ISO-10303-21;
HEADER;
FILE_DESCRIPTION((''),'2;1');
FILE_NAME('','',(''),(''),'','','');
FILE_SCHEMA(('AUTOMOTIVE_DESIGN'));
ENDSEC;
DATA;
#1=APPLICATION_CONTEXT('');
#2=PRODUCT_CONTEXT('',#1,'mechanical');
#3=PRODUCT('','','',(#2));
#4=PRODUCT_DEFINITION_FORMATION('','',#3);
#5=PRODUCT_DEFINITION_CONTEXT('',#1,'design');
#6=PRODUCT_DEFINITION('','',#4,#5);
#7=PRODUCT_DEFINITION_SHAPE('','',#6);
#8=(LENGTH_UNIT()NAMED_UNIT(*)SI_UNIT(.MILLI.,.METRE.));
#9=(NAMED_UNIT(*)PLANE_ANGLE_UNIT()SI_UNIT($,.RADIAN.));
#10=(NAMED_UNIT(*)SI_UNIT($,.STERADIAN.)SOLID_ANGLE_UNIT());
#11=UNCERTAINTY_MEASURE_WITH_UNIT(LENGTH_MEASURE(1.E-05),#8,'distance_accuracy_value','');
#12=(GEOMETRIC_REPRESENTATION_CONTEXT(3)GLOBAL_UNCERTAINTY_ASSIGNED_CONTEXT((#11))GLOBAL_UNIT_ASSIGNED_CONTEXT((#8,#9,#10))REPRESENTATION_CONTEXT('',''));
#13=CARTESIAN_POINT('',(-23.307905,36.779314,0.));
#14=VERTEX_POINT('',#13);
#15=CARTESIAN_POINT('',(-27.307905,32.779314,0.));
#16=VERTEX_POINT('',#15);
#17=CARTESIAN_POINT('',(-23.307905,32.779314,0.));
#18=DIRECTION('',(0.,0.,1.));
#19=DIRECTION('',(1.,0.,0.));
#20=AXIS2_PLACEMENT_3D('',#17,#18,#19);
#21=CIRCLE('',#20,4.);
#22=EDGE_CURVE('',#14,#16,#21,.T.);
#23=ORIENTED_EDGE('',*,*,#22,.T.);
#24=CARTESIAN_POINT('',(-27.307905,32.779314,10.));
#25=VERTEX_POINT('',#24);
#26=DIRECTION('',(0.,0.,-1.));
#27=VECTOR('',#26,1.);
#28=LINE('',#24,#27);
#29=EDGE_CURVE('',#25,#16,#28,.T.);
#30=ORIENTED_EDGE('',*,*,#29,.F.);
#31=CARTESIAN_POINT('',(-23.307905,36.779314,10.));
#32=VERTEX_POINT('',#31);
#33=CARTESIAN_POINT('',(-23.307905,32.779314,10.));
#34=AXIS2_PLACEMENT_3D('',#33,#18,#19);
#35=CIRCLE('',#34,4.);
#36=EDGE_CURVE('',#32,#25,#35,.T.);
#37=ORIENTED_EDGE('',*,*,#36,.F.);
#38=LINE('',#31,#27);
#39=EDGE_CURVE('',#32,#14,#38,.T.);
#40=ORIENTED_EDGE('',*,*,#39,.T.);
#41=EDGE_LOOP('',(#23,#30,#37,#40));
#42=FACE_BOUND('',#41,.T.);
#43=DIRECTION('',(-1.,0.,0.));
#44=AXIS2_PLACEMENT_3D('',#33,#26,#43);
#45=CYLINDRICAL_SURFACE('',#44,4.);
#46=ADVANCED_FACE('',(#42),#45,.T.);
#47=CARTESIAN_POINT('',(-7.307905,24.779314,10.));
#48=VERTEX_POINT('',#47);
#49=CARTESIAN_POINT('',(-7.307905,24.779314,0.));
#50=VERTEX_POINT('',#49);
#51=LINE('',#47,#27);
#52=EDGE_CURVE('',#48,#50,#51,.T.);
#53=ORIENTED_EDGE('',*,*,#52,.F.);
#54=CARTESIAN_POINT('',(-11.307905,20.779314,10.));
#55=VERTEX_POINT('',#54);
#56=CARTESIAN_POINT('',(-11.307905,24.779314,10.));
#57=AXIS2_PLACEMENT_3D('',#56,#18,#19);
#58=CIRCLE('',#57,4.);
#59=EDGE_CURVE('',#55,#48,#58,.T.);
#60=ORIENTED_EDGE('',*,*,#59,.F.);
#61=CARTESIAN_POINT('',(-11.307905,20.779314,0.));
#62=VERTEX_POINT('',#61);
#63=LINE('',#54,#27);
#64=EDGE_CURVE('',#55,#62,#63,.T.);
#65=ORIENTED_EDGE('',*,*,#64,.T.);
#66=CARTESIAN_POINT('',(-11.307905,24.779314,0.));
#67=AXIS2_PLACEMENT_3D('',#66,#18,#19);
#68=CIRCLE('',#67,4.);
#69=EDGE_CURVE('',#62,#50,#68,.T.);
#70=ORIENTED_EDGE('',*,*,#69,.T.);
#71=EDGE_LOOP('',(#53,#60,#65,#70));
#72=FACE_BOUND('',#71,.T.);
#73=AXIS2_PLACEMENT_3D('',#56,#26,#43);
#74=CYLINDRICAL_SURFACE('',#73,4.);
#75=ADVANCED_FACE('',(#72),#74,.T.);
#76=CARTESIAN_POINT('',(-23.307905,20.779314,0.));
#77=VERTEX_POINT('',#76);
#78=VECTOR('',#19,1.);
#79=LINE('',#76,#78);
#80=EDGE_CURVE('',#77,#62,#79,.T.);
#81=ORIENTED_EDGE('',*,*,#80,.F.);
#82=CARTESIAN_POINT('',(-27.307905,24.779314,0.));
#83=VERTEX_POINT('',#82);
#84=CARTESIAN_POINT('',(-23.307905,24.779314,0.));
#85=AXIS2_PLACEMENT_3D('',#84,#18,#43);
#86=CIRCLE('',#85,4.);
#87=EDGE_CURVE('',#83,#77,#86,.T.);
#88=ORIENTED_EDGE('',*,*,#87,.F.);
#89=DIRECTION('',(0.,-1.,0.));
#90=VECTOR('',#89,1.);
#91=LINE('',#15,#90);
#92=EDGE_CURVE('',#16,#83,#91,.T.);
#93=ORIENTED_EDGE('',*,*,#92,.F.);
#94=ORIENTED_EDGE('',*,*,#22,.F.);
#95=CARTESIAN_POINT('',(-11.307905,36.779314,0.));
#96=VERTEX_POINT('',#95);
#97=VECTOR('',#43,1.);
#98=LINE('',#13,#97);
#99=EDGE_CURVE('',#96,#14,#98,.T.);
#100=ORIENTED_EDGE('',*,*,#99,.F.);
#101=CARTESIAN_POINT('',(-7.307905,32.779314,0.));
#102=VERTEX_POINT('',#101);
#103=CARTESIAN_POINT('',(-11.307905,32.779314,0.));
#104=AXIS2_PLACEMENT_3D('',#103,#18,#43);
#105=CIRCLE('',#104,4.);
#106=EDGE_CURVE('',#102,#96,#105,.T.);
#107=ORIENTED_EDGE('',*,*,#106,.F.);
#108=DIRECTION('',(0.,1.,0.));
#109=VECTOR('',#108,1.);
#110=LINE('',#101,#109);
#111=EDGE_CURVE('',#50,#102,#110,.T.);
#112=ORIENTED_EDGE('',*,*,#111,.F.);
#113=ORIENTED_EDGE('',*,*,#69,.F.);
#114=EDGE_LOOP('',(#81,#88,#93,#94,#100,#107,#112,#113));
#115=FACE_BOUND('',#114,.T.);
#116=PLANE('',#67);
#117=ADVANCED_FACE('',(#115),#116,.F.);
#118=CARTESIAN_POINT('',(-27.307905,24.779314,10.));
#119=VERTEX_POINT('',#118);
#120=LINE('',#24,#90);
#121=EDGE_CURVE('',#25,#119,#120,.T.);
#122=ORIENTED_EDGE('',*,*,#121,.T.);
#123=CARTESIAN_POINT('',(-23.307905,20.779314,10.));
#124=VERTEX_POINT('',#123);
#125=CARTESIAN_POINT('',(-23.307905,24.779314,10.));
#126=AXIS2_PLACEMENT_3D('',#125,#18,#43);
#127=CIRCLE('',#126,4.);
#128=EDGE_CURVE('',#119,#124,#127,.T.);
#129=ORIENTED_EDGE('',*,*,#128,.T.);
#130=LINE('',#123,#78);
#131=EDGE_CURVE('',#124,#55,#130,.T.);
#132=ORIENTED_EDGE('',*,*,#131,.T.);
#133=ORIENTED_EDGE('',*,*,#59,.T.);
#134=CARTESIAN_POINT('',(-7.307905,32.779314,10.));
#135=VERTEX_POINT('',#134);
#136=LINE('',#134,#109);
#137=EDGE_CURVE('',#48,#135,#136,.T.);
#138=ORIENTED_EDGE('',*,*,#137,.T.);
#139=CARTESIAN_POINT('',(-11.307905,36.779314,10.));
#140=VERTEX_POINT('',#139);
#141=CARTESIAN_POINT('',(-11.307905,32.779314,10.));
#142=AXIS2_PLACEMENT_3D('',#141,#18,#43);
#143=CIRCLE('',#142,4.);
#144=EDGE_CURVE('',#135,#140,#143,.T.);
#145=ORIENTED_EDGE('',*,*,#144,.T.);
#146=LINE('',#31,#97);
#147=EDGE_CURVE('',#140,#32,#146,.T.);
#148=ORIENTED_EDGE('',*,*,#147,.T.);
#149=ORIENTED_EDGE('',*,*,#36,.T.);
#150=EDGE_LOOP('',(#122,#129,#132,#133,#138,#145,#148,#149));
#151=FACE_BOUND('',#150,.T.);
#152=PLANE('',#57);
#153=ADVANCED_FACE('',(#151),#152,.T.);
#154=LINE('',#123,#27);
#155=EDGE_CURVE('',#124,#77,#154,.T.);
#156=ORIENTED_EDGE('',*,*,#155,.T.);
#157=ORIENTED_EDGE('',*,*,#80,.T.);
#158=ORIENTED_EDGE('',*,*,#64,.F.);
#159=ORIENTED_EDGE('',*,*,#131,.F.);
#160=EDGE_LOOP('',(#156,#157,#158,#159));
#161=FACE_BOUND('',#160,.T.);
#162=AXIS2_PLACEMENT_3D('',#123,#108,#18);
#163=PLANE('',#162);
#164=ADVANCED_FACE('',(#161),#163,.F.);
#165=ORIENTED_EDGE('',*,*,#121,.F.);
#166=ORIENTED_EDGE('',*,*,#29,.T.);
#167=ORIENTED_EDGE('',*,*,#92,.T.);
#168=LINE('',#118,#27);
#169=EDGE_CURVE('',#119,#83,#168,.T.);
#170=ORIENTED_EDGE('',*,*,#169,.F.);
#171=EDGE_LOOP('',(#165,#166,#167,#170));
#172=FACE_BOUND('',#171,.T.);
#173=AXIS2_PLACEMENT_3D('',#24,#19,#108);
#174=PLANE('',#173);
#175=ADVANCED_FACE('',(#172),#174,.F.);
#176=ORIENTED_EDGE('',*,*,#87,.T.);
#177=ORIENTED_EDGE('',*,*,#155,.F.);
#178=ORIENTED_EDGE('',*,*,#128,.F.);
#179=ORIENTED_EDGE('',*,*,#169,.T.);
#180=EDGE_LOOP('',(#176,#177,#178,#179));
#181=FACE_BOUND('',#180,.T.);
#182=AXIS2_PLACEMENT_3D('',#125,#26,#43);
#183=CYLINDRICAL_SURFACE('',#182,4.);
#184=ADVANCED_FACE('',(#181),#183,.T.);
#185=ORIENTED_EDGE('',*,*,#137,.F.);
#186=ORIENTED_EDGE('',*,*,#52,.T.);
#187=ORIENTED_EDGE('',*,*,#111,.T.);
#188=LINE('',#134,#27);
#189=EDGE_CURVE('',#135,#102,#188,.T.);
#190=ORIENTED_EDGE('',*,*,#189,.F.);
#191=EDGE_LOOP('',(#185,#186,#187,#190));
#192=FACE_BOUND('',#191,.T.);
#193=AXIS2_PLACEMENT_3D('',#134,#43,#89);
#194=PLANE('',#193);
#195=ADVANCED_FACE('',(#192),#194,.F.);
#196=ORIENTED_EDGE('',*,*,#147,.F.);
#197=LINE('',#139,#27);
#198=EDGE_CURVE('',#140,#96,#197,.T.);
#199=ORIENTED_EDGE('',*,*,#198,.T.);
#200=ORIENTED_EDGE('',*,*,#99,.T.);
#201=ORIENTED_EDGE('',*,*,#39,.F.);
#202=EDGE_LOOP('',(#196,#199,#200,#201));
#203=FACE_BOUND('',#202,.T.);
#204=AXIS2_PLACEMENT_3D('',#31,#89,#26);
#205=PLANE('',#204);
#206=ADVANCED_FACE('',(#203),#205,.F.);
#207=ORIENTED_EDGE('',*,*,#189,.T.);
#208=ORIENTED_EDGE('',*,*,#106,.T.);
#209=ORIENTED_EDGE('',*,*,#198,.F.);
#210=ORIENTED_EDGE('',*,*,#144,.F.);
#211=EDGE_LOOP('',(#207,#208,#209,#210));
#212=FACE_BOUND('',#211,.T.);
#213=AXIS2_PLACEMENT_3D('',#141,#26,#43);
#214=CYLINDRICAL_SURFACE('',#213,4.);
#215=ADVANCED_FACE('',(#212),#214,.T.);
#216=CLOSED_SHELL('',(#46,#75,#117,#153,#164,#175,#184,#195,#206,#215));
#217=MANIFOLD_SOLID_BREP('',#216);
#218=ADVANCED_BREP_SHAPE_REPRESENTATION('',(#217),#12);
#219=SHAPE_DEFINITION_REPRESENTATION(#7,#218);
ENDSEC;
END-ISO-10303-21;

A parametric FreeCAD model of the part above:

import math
import FreeCAD as App
import Part
import Sketcher
Q = App.Units.Quantity

doc = App.newDocument("Part")
body = doc.addObject("PartDesign::Body", "Body")

# Sketch on XY plane
sketch1 = doc.addObject("Sketcher::SketchObject", "Sketch")
body.addObject(sketch1)
sketch1.AttachmentSupport = (doc.XY_Plane, [""])
sketch1.MapMode = "FlatFace"
sketch1.addGeometry([
    Part.LineSegment(App.Vector(-11.3, 36.8, 0), App.Vector(-23.3, 36.8, 0)),  # 0
    Part.ArcOfCircle(Part.Circle(App.Vector(-23.3, 32.8, 0), App.Vector(0, 0, 1), 4), math.radians(90), math.radians(180)),  # 1
    Part.LineSegment(App.Vector(-27.3, 32.8, 0), App.Vector(-27.3, 24.8, 0)),  # 2
    Part.ArcOfCircle(Part.Circle(App.Vector(-23.3, 24.8, 0), App.Vector(0, 0, 1), 4), math.radians(-180), math.radians(-90)),  # 3
    Part.LineSegment(App.Vector(-23.3, 20.8, 0), App.Vector(-11.3, 20.8, 0)),  # 4
    Part.ArcOfCircle(Part.Circle(App.Vector(-11.3, 24.8, 0), App.Vector(0, 0, 1), 4), math.radians(-90), math.radians(0)),  # 5
    Part.LineSegment(App.Vector(-7.3, 24.8, 0), App.Vector(-7.3, 32.8, 0)),  # 6
    Part.ArcOfCircle(Part.Circle(App.Vector(-11.3, 32.8, 0), App.Vector(0, 0, 1), 4), math.radians(0), math.radians(90)),  # 7
], False)
sketch1.addConstraint([
    Sketcher.Constraint("Tangent", 0, 2, 1, 1),
    Sketcher.Constraint("Tangent", 1, 2, 2, 1),
    Sketcher.Constraint("Tangent", 2, 2, 3, 1),
    Sketcher.Constraint("Tangent", 3, 2, 4, 1),
    Sketcher.Constraint("Tangent", 4, 2, 5, 1),
    Sketcher.Constraint("Tangent", 5, 2, 6, 1),
    Sketcher.Constraint("Tangent", 6, 2, 7, 1),
    Sketcher.Constraint("Tangent", 7, 2, 0, 1),
    Sketcher.Constraint("Horizontal", 0),
    Sketcher.Constraint("Vertical", 2),
    Sketcher.Constraint("Horizontal", 4),
    Sketcher.Constraint("Vertical", 6),
    Sketcher.Constraint("Equal", 1, 3),
    Sketcher.Constraint("Equal", 3, 5),
    Sketcher.Constraint("Equal", 5, 7),
    Sketcher.Constraint("Radius", 1, Q("4 mm")),
    Sketcher.Constraint("DistanceX", 0, 2, 0, 1, Q("12 mm")),
    Sketcher.Constraint("DistanceY", 2, 2, 2, 1, Q("8 mm")),
    Sketcher.Constraint("DistanceX", 1, 3, -1, 1, Q("23.307905 mm")),
    Sketcher.Constraint("DistanceY", -1, 1, 1, 3, Q("32.779314 mm")),
])
pad1 = doc.addObject("PartDesign::Pad", "Pad")
body.addObject(pad1)
pad1.Profile = sketch1
pad1.Length = 10

doc.recompute()
